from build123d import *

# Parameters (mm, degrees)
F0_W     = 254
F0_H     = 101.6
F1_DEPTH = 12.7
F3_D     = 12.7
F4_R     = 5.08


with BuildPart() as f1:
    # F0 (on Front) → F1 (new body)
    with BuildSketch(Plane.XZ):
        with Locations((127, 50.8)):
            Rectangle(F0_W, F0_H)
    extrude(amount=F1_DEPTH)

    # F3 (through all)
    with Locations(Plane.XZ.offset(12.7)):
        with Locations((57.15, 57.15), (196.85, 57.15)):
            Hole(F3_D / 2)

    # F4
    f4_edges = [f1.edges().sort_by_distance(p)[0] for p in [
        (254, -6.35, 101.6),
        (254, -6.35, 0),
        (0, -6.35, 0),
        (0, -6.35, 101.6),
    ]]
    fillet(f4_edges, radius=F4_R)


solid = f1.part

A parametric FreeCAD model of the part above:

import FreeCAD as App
import Part
import Sketcher

V = App.Vector
Q = App.Units.Quantity


def edges_at(feature, points):
    """Names of the edges that pass closest to the given points."""
    edges = feature.Shape.Edges
    near = lambda p: min(range(len(edges)), key=lambda i: edges[i].distToShape(Part.Vertex(*p))[0])
    return sorted({f"Edge{near(p) + 1}" for p in points})

doc = App.newDocument("Part")
body = doc.addObject("PartDesign::Body", "Body")

# Sketch on XZ plane
sketch1 = doc.addObject("Sketcher::SketchObject", "Sketch")
body.addObject(sketch1)
sketch1.AttachmentSupport = (doc.XZ_Plane, [""])
sketch1.MapMode = "FlatFace"
sketch1.addGeometry(Part.LineSegment(V(0, 101.6, 0), V(0, 0, 0)), False)
sketch1.addGeometry(Part.LineSegment(V(0, 0, 0), V(254, 0, 0)), False)
sketch1.addGeometry(Part.LineSegment(V(254, 0, 0), V(254, 101.6, 0)), False)
sketch1.addGeometry(Part.LineSegment(V(254, 101.6, 0), V(0, 101.6, 0)), False)
sketch1.addConstraint(Sketcher.Constraint("Coincident", 0, 2, 1, 1))
sketch1.addConstraint(Sketcher.Constraint("Coincident", 1, 2, 2, 1))
sketch1.addConstraint(Sketcher.Constraint("Coincident", 2, 2, 3, 1))
sketch1.addConstraint(Sketcher.Constraint("Coincident", 3, 2, 0, 1))
sketch1.addConstraint(Sketcher.Constraint("Vertical", 0))
sketch1.addConstraint(Sketcher.Constraint("Horizontal", 1))
sketch1.addConstraint(Sketcher.Constraint("Vertical", 2))
sketch1.addConstraint(Sketcher.Constraint("Horizontal", 3))
sketch1.addConstraint(Sketcher.Constraint("Coincident", 0, 2, -1, 1))
sketch1.addConstraint(Sketcher.Constraint("DistanceX", 1, 1, 1, 2, Q("10 in")))
sketch1.addConstraint(Sketcher.Constraint("DistanceY", 0, 2, 0, 1, Q("4 in")))
pad1 = doc.addObject("PartDesign::Pad", "Pad")
body.addObject(pad1)
pad1.Profile = sketch1
pad1.Length = Q("0.5 in")

# Sketch on XZ plane
sketch2 = doc.addObject("Sketcher::SketchObject", "Sketch001")
body.addObject(sketch2)
sketch2.AttachmentSupport = (doc.XZ_Plane, [""])
sketch2.MapMode = "FlatFace"
sketch2.AttachmentOffset = App.Placement(V(0, 0, 0.5 * 25.4), App.Rotation())
sketch2.addGeometry(Part.Circle(V(57.15, 57.15, 0), V(0, 0, 1), 6.35), False)
sketch2.addGeometry(Part.Circle(V(196.85, 57.15, 0), V(0, 0, 1), 6.35), False)
sketch2.addConstraint(Sketcher.Constraint("Equal", 0, 1))
sketch2.addConstraint(Sketcher.Constraint("Horizontal", 0, 3, 1, 3))
sketch2.addConstraint(Sketcher.Constraint("Diameter", 0, Q("0.5 in")))
sketch2.addConstraint(Sketcher.Constraint("DistanceX", 0, 3, 1, 3, Q("5.5 in")))
sketch2.addConstraint(Sketcher.Constraint("DistanceX", -1, 1, 0, 3, Q("2.25 in")))
sketch2.addConstraint(Sketcher.Constraint("DistanceY", -1, 1, 0, 3, Q("2.25 in")))
doc.recompute()
hole = doc.addObject("PartDesign::Hole", "Hole")
body.addObject(hole)
hole.Profile = sketch2
hole.ThreadType = "None"
hole.Diameter = Q("0.5 in")
hole.DepthType = "ThroughAll"
doc.recompute()

fillet = doc.addObject("PartDesign::Fillet", "Fillet")
body.addObject(fillet)
fillet.Base = (hole, edges_at(hole, [
    (254, -6.35, 101.6),
    (254, -6.35, 0),
    (0, -6.35, 0),
    (0, -6.35, 101.6),
]))
fillet.Radius = Q("0.2 in")

doc.recompute()
